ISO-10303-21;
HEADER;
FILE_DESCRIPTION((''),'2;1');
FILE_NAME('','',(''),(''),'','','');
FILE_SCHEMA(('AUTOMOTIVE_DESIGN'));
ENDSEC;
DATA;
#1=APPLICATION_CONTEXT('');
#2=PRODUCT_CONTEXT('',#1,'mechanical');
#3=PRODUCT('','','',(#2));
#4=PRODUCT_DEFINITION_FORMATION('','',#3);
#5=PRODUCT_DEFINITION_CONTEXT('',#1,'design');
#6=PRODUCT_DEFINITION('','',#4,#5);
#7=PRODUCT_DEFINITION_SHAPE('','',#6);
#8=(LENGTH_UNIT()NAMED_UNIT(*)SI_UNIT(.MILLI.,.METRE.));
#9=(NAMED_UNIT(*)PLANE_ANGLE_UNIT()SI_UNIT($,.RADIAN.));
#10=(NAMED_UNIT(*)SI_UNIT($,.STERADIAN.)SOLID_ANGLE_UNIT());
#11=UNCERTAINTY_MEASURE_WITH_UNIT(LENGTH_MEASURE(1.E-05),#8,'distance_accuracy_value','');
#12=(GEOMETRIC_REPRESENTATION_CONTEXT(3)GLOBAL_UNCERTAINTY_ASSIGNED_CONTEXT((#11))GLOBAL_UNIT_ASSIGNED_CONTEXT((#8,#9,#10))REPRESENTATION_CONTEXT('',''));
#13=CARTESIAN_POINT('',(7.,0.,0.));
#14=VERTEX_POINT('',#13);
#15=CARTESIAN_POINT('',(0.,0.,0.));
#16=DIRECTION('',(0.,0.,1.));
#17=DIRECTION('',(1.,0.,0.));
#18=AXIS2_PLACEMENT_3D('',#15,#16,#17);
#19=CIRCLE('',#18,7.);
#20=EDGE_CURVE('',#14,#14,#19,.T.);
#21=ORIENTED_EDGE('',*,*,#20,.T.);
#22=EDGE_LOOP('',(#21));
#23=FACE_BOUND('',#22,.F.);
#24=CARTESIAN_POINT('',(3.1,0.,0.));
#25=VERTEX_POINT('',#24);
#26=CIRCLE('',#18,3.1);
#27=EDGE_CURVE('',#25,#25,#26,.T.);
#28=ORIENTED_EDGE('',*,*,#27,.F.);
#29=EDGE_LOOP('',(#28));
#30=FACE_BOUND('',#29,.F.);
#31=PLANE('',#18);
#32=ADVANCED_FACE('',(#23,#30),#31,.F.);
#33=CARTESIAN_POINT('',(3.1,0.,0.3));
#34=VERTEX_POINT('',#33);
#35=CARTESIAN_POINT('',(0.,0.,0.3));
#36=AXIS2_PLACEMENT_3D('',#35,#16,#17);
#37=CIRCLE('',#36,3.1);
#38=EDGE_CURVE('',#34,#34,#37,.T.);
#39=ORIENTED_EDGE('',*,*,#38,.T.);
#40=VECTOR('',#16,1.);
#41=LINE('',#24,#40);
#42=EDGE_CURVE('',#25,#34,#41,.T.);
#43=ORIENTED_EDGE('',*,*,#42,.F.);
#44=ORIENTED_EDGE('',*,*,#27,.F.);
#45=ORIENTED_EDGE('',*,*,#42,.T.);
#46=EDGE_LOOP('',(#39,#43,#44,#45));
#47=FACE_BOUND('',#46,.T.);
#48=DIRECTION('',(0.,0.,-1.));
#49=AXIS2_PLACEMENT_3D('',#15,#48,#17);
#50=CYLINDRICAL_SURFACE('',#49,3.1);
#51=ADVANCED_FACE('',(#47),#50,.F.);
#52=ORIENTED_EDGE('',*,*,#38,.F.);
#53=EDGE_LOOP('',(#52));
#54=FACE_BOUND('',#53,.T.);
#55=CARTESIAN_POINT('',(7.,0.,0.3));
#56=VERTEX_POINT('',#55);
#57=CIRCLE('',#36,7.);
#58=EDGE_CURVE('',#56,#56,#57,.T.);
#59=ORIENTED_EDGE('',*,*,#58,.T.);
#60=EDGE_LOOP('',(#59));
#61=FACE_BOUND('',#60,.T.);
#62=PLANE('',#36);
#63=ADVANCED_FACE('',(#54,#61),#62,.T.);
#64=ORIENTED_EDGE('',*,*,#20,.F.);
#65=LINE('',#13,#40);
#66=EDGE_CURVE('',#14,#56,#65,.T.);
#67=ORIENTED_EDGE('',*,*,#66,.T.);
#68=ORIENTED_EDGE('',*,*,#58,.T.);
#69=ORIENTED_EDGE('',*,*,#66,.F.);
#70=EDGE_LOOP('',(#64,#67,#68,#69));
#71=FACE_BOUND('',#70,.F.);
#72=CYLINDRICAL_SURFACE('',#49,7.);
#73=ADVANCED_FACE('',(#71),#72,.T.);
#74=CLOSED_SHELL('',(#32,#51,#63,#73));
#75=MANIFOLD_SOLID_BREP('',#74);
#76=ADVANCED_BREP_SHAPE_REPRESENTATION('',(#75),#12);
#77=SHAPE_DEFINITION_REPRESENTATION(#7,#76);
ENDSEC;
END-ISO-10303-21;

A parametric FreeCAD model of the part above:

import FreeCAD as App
import Part
import Sketcher

V = App.Vector

doc = App.newDocument("Part")
body = doc.addObject("PartDesign::Body", "Body")

# Sketch on XY plane
sketch1 = doc.addObject("Sketcher::SketchObject", "Sketch")
body.addObject(sketch1)
sketch1.AttachmentSupport = (doc.XY_Plane, [""])
sketch1.MapMode = "FlatFace"
sketch1.addGeometry(Part.Circle(V(0, 0, 0), V(0, 0, 1), 7), False)
sketch1.addGeometry(Part.Circle(V(0, 0, 0), V(0, 0, 1), 3.1), False)
sketch1.addConstraint(Sketcher.Constraint("Coincident", 0, 3, -1, 1))
sketch1.addConstraint(Sketcher.Constraint("Coincident", 1, 3, -1, 1))
sketch1.addConstraint(Sketcher.Constraint("Diameter", 0, 14.0))
sketch1.addConstraint(Sketcher.Constraint("Diameter", 1, 6.2))
pad1 = doc.addObject("PartDesign::Pad", "Pad")
body.addObject(pad1)
pad1.Profile = sketch1
pad1.Length = 0.3

doc.recompute()
